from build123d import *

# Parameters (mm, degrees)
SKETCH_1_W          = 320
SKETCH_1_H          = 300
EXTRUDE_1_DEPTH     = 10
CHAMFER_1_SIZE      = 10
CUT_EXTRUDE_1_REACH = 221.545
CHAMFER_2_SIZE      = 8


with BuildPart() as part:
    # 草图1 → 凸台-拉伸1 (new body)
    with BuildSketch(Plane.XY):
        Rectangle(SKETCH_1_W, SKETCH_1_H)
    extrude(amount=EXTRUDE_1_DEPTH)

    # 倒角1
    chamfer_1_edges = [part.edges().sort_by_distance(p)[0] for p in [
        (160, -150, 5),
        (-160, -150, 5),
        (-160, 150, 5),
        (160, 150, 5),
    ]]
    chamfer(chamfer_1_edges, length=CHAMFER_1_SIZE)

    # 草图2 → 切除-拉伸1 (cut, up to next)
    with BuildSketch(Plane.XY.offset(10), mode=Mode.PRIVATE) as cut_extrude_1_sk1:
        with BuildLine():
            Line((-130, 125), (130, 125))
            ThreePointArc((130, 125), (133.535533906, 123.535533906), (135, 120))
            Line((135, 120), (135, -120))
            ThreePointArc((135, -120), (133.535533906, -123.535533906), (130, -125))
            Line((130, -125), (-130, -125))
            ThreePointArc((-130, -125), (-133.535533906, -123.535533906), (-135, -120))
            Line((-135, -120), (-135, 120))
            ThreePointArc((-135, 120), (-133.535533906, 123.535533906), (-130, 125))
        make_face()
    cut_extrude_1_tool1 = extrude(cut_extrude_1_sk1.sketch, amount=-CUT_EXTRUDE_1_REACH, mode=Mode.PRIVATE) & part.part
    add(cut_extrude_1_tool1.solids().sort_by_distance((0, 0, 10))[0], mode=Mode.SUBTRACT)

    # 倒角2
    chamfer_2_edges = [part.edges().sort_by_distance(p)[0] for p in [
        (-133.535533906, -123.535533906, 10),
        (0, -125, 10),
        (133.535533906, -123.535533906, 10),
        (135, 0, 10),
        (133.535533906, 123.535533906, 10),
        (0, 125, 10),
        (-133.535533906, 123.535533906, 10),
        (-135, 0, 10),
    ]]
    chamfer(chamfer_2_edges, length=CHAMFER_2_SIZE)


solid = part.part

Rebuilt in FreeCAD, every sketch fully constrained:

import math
import FreeCAD as App
import Part
import Sketcher

V = App.Vector
Q = App.Units.Quantity


def edges_at(feature, points):
    """Names of the edges that pass closest to the given points."""
    edges = feature.Shape.Edges
    near = lambda p: min(range(len(edges)), key=lambda i: edges[i].distToShape(Part.Vertex(*p))[0])
    return sorted({f"Edge{near(p) + 1}" for p in points})


def add_polygon(sketch, points):
    """Adds a closed chain of lines whose ends are joined by coincident constraints."""
    first, n = sketch.GeometryCount, len(points)
    for a, b in zip(points, points[1:] + points[:1]):
        sketch.addGeometry(Part.LineSegment(App.Vector(*a, 0), App.Vector(*b, 0)), False)
    for i in range(n):
        sketch.addConstraint(Sketcher.Constraint("Coincident", first + i, 2, first + (i + 1) % n, 1))

doc = App.newDocument("Part")
body = doc.addObject("PartDesign::Body", "Body")

# Sketch on XY plane
sketch1 = body.newObject("Sketcher::SketchObject", "Sketch")
sketch1.AttachmentSupport = (doc.getObject("XY_Plane"), [""])
sketch1.MapMode = "FlatFace"
add_polygon(sketch1, [(-160, 150), (-160, -150), (160, -150), (160, 150)])  # lines 0-3
sketch1.addConstraint([
    Sketcher.Constraint("Vertical", 0),
    Sketcher.Constraint("Horizontal", 1),
    Sketcher.Constraint("Vertical", 2),
    Sketcher.Constraint("Horizontal", 3),
    Sketcher.Constraint("Symmetric", 0, 2, 2, 2, -1, 1),
    Sketcher.Constraint("DistanceX", 1, 1, 1, 2, Q("320 mm")),
    Sketcher.Constraint("DistanceY", 0, 2, 0, 1, Q("300 mm")),
])
pad1 = body.newObject("PartDesign::Pad", "Pad")
pad1.Profile = sketch1
pad1.Length = 10
doc.recompute()

chamfer = body.newObject("PartDesign::Chamfer", "Chamfer")
chamfer.Base = (pad1, edges_at(pad1, [
    (160, -150, 5),
    (-160, -150, 5),
    (-160, 150, 5),
    (160, 150, 5),
]))
chamfer.Size = 10

# Sketch on XY plane
sketch2 = body.newObject("Sketcher::SketchObject", "Sketch001")
sketch2.AttachmentSupport = (doc.getObject("XY_Plane"), [""])
sketch2.MapMode = "FlatFace"
sketch2.AttachmentOffset = App.Placement(V(0, 0, 10), App.Rotation())
sketch2.addGeometry([
    Part.LineSegment(V(130, 125, 0), V(-130, 125, 0)),  # 0
    Part.ArcOfCircle(Part.Circle(V(-130, 120, 0), V(0, 0, 1), 5), math.radians(90), math.radians(180)),  # 1
    Part.LineSegment(V(-135, 120, 0), V(-135, -120, 0)),  # 2
    Part.ArcOfCircle(Part.Circle(V(-130, -120, 0), V(0, 0, 1), 5), math.radians(180), math.radians(270)),  # 3
    Part.LineSegment(V(-130, -125, 0), V(130, -125, 0)),  # 4
    Part.ArcOfCircle(Part.Circle(V(130, -120, 0), V(0, 0, 1), 5), math.radians(-90), math.radians(0)),  # 5
    Part.LineSegment(V(135, -120, 0), V(135, 120, 0)),  # 6
    Part.ArcOfCircle(Part.Circle(V(130, 120, 0), V(0, 0, 1), 5), math.radians(0), math.radians(90)),  # 7
], False)
sketch2.addConstraint([
    Sketcher.Constraint("Tangent", 0, 2, 1, 1),
    Sketcher.Constraint("Tangent", 1, 2, 2, 1),
    Sketcher.Constraint("Tangent", 2, 2, 3, 1),
    Sketcher.Constraint("Tangent", 3, 2, 4, 1),
    Sketcher.Constraint("Tangent", 4, 2, 5, 1),
    Sketcher.Constraint("Tangent", 5, 2, 6, 1),
    Sketcher.Constraint("Tangent", 6, 2, 7, 1),
    Sketcher.Constraint("Tangent", 7, 2, 0, 1),
    Sketcher.Constraint("Horizontal", 0),
    Sketcher.Constraint("Vertical", 2),
    Sketcher.Constraint("Horizontal", 4),
    Sketcher.Constraint("Vertical", 6),
    Sketcher.Constraint("Equal", 1, 3),
    Sketcher.Constraint("Equal", 3, 5),
    Sketcher.Constraint("Equal", 5, 7),
    Sketcher.Constraint("Symmetric", 1, 3, 5, 3, -1, 1),
    Sketcher.Constraint("Radius", 1, Q("5 mm")),
    Sketcher.Constraint("DistanceX", 0, 2, 0, 1, Q("260 mm")),
    Sketcher.Constraint("DistanceY", 2, 2, 2, 1, Q("240 mm")),
])
pocket1 = body.newObject("PartDesign::Pocket", "Pocket")
pocket1.Profile = sketch2
pocket1.Type = "UpToFirst"
doc.recompute()

chamfer2 = body.newObject("PartDesign::Chamfer", "Chamfer001")
chamfer2.Base = (pocket1, edges_at(pocket1, [
    (-133.536, -123.536, 10),
    (0, -125, 10),
    (133.536, -123.536, 10),
    (135, 0, 10),
    (133.536, 123.536, 10),
    (0, 125, 10),
    (-133.536, 123.536, 10),
    (-135, 0, 10),
]))
chamfer2.Size = 8

doc.recompute()
